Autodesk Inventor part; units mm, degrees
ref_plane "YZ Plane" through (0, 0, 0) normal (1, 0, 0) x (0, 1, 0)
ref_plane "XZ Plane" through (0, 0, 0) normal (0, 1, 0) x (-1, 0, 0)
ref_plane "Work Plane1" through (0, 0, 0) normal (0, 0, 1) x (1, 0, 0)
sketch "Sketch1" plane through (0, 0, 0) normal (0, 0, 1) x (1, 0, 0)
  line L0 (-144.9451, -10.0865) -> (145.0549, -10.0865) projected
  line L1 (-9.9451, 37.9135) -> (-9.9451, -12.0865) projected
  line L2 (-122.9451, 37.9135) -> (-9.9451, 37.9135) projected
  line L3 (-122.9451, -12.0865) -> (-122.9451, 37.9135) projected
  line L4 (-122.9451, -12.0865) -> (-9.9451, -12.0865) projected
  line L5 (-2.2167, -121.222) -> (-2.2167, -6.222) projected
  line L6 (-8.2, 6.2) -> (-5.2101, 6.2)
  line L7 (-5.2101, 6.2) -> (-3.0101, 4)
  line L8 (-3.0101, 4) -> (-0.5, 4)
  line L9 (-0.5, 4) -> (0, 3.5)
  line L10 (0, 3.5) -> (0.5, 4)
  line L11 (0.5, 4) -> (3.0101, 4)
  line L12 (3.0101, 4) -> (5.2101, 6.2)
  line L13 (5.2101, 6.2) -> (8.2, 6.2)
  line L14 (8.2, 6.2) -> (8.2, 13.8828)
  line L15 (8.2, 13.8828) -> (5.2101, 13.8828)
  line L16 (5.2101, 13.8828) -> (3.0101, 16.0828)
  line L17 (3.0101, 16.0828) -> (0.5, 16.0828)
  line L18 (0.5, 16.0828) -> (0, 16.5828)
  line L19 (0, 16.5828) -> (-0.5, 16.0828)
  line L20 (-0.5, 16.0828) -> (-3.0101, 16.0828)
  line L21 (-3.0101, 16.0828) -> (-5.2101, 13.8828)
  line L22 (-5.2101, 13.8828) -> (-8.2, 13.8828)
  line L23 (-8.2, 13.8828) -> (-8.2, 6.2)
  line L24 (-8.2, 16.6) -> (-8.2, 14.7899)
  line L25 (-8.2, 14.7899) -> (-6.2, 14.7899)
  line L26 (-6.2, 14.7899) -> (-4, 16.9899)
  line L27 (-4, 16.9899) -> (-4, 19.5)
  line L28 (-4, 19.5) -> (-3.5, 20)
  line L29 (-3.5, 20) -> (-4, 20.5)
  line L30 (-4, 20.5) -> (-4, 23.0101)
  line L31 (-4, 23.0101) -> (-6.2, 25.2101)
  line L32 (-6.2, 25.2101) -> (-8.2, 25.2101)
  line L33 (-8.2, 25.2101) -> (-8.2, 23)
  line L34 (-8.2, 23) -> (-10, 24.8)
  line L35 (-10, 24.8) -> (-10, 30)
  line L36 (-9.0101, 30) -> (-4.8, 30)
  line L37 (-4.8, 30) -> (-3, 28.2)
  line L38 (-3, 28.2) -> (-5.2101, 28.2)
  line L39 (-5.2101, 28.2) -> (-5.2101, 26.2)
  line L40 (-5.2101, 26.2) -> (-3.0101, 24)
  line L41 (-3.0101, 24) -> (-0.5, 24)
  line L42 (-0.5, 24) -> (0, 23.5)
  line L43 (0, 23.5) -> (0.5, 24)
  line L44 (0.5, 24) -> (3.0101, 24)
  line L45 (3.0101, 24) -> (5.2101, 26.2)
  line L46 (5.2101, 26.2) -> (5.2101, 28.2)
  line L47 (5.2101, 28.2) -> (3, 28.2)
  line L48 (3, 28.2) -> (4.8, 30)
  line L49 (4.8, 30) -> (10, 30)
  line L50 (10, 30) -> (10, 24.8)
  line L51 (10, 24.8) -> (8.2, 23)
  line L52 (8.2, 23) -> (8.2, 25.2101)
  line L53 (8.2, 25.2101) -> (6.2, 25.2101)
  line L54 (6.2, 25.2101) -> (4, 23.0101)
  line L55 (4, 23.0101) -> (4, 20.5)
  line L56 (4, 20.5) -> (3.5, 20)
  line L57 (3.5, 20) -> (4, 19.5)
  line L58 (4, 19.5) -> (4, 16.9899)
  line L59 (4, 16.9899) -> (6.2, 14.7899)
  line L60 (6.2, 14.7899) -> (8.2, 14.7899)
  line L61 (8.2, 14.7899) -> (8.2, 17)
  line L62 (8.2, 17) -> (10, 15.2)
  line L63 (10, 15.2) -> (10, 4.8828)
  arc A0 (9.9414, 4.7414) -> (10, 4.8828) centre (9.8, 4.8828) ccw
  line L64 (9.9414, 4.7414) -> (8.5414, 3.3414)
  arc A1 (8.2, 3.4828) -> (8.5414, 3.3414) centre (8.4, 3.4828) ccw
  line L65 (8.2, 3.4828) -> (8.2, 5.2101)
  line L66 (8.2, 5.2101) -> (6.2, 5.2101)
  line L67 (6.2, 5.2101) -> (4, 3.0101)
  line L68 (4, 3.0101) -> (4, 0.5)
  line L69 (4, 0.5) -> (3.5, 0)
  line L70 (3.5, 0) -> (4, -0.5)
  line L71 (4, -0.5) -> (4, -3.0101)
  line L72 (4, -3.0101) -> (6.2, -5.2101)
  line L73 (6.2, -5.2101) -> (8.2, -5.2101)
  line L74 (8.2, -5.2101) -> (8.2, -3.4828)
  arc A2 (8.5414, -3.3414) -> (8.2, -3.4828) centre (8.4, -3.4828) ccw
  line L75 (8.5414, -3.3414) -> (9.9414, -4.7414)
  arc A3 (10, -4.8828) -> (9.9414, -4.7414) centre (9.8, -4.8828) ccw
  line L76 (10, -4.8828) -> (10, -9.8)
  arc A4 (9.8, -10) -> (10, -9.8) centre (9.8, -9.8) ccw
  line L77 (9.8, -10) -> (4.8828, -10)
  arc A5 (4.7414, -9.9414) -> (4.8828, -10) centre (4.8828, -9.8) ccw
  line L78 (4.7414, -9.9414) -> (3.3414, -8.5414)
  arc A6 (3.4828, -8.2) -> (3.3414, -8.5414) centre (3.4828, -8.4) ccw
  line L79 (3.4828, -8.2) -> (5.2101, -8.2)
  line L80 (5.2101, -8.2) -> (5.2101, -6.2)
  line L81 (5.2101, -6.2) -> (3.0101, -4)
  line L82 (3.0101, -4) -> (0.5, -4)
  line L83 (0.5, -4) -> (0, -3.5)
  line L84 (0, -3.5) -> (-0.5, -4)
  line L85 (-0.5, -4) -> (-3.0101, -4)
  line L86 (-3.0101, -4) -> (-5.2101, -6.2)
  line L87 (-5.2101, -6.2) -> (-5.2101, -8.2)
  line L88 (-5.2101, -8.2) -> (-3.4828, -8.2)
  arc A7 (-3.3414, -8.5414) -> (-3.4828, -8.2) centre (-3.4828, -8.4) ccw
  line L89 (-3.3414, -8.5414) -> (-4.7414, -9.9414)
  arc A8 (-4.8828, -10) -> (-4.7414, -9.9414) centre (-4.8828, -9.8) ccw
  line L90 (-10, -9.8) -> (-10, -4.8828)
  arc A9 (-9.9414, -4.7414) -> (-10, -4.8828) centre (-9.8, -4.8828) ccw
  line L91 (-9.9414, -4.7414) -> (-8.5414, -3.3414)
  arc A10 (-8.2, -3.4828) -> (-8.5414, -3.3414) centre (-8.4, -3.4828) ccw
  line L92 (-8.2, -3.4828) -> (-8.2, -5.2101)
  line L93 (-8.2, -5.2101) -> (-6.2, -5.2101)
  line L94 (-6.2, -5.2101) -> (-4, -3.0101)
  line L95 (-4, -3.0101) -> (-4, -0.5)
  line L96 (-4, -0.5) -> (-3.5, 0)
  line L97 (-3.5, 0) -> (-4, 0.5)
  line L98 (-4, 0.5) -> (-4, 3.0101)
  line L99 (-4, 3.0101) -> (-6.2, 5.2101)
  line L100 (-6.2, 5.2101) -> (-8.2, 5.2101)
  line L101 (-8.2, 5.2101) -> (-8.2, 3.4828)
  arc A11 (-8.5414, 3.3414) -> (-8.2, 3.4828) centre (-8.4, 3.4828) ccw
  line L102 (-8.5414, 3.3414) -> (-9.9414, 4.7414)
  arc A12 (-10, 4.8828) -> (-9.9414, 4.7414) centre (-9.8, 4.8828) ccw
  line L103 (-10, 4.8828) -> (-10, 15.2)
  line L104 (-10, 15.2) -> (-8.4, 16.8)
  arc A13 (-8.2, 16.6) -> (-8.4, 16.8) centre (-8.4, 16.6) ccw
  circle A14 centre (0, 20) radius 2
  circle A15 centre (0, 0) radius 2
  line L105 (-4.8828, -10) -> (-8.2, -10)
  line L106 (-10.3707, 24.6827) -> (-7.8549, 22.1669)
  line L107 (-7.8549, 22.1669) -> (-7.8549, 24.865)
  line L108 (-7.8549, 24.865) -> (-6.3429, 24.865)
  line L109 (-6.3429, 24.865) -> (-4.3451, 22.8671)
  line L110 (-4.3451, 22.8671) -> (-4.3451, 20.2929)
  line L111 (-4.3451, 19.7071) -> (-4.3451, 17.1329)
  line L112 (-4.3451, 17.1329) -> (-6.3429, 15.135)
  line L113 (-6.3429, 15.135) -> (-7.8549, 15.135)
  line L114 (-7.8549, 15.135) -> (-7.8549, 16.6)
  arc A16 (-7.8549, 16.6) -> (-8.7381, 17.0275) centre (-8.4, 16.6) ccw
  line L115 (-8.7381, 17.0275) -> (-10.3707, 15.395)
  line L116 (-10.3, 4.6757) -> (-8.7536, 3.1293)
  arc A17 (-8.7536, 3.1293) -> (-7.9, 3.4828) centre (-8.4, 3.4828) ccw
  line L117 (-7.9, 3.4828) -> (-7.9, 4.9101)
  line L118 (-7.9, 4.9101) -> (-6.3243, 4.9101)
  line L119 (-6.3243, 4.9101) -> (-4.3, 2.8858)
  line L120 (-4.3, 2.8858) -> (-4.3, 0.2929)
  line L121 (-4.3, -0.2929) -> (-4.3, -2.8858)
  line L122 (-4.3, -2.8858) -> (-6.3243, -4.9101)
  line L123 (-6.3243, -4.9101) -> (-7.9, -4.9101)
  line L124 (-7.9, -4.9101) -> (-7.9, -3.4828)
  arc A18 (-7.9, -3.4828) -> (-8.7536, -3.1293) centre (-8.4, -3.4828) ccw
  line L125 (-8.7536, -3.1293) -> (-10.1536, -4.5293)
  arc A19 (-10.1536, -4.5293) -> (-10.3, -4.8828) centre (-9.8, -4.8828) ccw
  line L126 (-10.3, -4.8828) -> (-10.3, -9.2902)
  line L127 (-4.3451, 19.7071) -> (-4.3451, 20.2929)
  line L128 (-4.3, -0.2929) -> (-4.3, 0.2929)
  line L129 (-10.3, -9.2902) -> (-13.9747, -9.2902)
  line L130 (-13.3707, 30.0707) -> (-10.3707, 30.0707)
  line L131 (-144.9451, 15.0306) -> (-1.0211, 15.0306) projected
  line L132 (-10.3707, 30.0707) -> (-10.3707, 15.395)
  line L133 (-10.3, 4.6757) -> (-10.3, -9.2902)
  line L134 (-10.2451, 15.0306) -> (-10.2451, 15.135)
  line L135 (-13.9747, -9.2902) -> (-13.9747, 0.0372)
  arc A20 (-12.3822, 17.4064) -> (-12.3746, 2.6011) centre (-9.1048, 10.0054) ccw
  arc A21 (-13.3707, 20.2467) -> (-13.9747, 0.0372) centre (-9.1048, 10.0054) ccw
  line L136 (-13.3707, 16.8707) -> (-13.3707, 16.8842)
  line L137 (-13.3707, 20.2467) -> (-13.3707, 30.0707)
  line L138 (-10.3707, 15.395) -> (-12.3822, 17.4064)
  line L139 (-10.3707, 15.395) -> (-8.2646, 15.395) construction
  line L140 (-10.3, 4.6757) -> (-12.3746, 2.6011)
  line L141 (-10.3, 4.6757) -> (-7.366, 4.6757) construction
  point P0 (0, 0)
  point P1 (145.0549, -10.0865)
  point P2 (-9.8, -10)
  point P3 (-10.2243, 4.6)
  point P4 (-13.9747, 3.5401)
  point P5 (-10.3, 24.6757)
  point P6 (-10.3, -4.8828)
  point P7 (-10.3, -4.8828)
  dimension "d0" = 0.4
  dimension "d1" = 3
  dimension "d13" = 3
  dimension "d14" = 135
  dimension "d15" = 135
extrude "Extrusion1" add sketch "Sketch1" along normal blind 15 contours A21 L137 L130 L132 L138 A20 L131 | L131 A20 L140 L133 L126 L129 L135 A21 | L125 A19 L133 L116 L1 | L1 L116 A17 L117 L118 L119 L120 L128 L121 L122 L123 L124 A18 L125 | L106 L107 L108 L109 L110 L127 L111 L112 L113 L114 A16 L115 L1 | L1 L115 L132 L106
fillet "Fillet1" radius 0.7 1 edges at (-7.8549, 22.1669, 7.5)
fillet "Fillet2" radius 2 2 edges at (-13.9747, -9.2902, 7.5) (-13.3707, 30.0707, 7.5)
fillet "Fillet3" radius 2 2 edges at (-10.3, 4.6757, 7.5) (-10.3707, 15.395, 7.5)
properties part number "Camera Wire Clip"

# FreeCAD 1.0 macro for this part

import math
import FreeCAD as App
import Part
import Sketcher

V = App.Vector
Q = App.Units.Quantity


def edges_at(feature, points):
    """Names of the edges that pass closest to the given points."""
    edges = feature.Shape.Edges
    near = lambda p: min(range(len(edges)), key=lambda i: edges[i].distToShape(Part.Vertex(*p))[0])
    return sorted({f"Edge{near(p) + 1}" for p in points})

doc = App.newDocument("Part")
body = doc.addObject("PartDesign::Body", "Body")

sketch1 = body.newObject("Sketcher::SketchObject", "Sketch")
sketch1.AttachmentSupport = (doc.getObject("XY_Plane"), [""])
sketch1.MapMode = "FlatFace"
sketch1.addGeometry([
    Part.ArcOfCircle(Part.Circle(V(-9.1, 10.01, 0), V(0, 0, 1), 11.09), math.radians(113), math.radians(244)),
    Part.LineSegment(V(-13.97, 0.04, 0), V(-13.97, -9.29, 0)),
    Part.LineSegment(V(-13.97, -9.29, 0), V(-10.3, -9.29, 0)),
    Part.LineSegment(V(-10.3, -9.29, 0), V(-10.3, -4.88, 0)),
    Part.ArcOfCircle(Part.Circle(V(-9.8, -4.88, 0), V(0, 0, 1), 0.5), math.radians(135), math.radians(180)),
    Part.LineSegment(V(-10.15, -4.53, 0), V(-8.75, -3.13, 0)),
    Part.ArcOfCircle(Part.Circle(V(-8.4, -3.48, 0), V(0, 0, 1), 0.5), math.radians(0), math.radians(135)),
    Part.LineSegment(V(-7.9, -3.48, 0), V(-7.9, -4.91, 0)),
    Part.LineSegment(V(-7.9, -4.91, 0), V(-6.32, -4.91, 0)),
    Part.LineSegment(V(-6.32, -4.91, 0), V(-4.3, -2.89, 0)),
    Part.LineSegment(V(-4.3, -2.89, 0), V(-4.3, 2.89, 0)),
    Part.LineSegment(V(-4.3, 2.89, 0), V(-6.32, 4.91, 0)),
    Part.LineSegment(V(-6.32, 4.91, 0), V(-7.9, 4.91, 0)),
    Part.LineSegment(V(-7.9, 4.91, 0), V(-7.9, 3.48, 0)),
    Part.ArcOfCircle(Part.Circle(V(-8.4, 3.48, 0), V(0, 0, 1), 0.5), math.radians(-135), math.radians(0)),
    Part.LineSegment(V(-8.75, 3.13, 0), V(-10.3, 4.68, 0)),
    Part.LineSegment(V(-10.3, 4.68, 0), V(-12.37, 2.6, 0)),
    Part.ArcOfCircle(Part.Circle(V(-9.1, 10.01, 0), V(0, 0, 1), 8.09), math.radians(114), math.radians(246)),
    Part.LineSegment(V(-12.38, 17.41, 0), V(-10.37, 15.39, 0)),
    Part.LineSegment(V(-10.37, 15.39, 0), V(-8.74, 17.03, 0)),
    Part.ArcOfCircle(Part.Circle(V(-8.4, 16.6, 0), V(0, 0, 1), 0.55), math.radians(0), math.radians(128)),
    Part.LineSegment(V(-7.85, 16.6, 0), V(-7.85, 15.13, 0)),
    Part.LineSegment(V(-7.85, 15.13, 0), V(-6.34, 15.13, 0)),
    Part.LineSegment(V(-6.34, 15.13, 0), V(-4.35, 17.13, 0)),
    Part.LineSegment(V(-4.35, 17.13, 0), V(-4.35, 22.87, 0)),
    Part.LineSegment(V(-4.35, 22.87, 0), V(-6.34, 24.86, 0)),
    Part.LineSegment(V(-6.34, 24.86, 0), V(-7.85, 24.86, 0)),
    Part.LineSegment(V(-7.85, 24.86, 0), V(-7.85, 22.17, 0)),
    Part.LineSegment(V(-7.85, 22.17, 0), V(-10.37, 24.68, 0)),
    Part.LineSegment(V(-10.37, 24.68, 0), V(-10.37, 30.07, 0)),
    Part.LineSegment(V(-10.37, 30.07, 0), V(-13.37, 30.07, 0)),
    Part.LineSegment(V(-13.37, 30.07, 0), V(-13.37, 20.25, 0)),
], False)
sketch1.addConstraint([
    Sketcher.Constraint("Coincident", 0, 2, 1, 1),
    Sketcher.Constraint("Coincident", 1, 2, 2, 1),
    Sketcher.Constraint("Coincident", 2, 2, 3, 1),
    Sketcher.Constraint("Tangent", 3, 2, 4, 2),
    Sketcher.Constraint("Tangent", 4, 1, 5, 1),
    Sketcher.Constraint("Tangent", 5, 2, 6, 2),
    Sketcher.Constraint("Tangent", 6, 1, 7, 1),
    Sketcher.Constraint("Coincident", 7, 2, 8, 1),
    Sketcher.Constraint("Coincident", 8, 2, 9, 1),
    Sketcher.Constraint("Coincident", 9, 2, 10, 1),
    Sketcher.Constraint("Coincident", 10, 2, 11, 1),
    Sketcher.Constraint("Coincident", 11, 2, 12, 1),
    Sketcher.Constraint("Coincident", 12, 2, 13, 1),
    Sketcher.Constraint("Tangent", 13, 2, 14, 2),
    Sketcher.Constraint("Tangent", 14, 1, 15, 1),
    Sketcher.Constraint("Coincident", 15, 2, 16, 1),
    Sketcher.Constraint("Coincident", 16, 2, 17, 2),
    Sketcher.Constraint("Coincident", 17, 1, 18, 1),
    Sketcher.Constraint("Coincident", 18, 2, 19, 1),
    Sketcher.Constraint("Coincident", 19, 2, 20, 2),
    Sketcher.Constraint("Tangent", 20, 1, 21, 1),
    Sketcher.Constraint("Coincident", 21, 2, 22, 1),
    Sketcher.Constraint("Coincident", 22, 2, 23, 1),
    Sketcher.Constraint("Coincident", 23, 2, 24, 1),
    Sketcher.Constraint("Coincident", 24, 2, 25, 1),
    Sketcher.Constraint("Coincident", 25, 2, 26, 1),
    Sketcher.Constraint("Coincident", 26, 2, 27, 1),
    Sketcher.Constraint("Coincident", 27, 2, 28, 1),
    Sketcher.Constraint("Coincident", 28, 2, 29, 1),
    Sketcher.Constraint("Coincident", 29, 2, 30, 1),
    Sketcher.Constraint("Coincident", 30, 2, 31, 1),
    Sketcher.Constraint("Coincident", 31, 2, 0, 1),
    Sketcher.Constraint("Vertical", 1),
    Sketcher.Constraint("Horizontal", 2),
    Sketcher.Constraint("Vertical", 3),
    Sketcher.Constraint("Vertical", 7),
    Sketcher.Constraint("Horizontal", 8),
    Sketcher.Constraint("Vertical", 10),
    Sketcher.Constraint("Horizontal", 12),
    Sketcher.Constraint("Vertical", 13),
    Sketcher.Constraint("Vertical", 21),
    Sketcher.Constraint("Horizontal", 22),
    Sketcher.Constraint("Vertical", 24),
    Sketcher.Constraint("Horizontal", 26),
    Sketcher.Constraint("Vertical", 27),
    Sketcher.Constraint("Vertical", 29),
    Sketcher.Constraint("Horizontal", 30),
    Sketcher.Constraint("Vertical", 31),
    Sketcher.Constraint("Coincident", 17, 3, 0, 3),
    Sketcher.Constraint("Equal", 4, 6),
    Sketcher.Constraint("Equal", 6, 14),
    Sketcher.Constraint("Symmetric", 6, 3, 14, 3, -1),
    Sketcher.Constraint("Symmetric", 8, 2, 11, 2, -1),
    Sketcher.Constraint("Parallel", 5, 9),
    Sketcher.Constraint("Perpendicular", 9, 11),
    Sketcher.Constraint("Parallel", 11, 15),
    Sketcher.Constraint("Perpendicular", 15, 16),
    Sketcher.Constraint("Perpendicular", 16, 18),
    Sketcher.Constraint("Perpendicular", 18, 19),
    Sketcher.Constraint("Parallel", 19, 23),
    Sketcher.Constraint("Perpendicular", 23, 25),
    Sketcher.Constraint("Parallel", 25, 28),
    Sketcher.Constraint("Vertical", 14, 3, 20, 3),
    Sketcher.Constraint("Vertical", 5, 2, 14, 1),
    Sketcher.Constraint("Vertical", 3, 2, 15, 2),
    Sketcher.Constraint("Vertical", 22, 2, 25, 2),
    Sketcher.Constraint("Vertical", 21, 2, 26, 2),
    Sketcher.Constraint("Vertical", 18, 2, 28, 2),
    Sketcher.Constraint("DistanceX", 30, 2, 30, 1, Q("3 mm")),
    Sketcher.Constraint("Radius", 4, Q("0.5 mm")),
    Sketcher.Constraint("Radius", 20, Q("0.545 mm")),
    Sketcher.Constraint("DistanceX", 4, 3, -1, 1, Q("9.8 mm")),
    Sketcher.Constraint("DistanceX", 6, 3, -1, 1, Q("8.4 mm")),
    Sketcher.Constraint("DistanceY", -1, 1, 20, 3, Q("16.6 mm")),
    Sketcher.Constraint("DistanceX", 9, 2, -1, 1, Q("4.3 mm")),
    Sketcher.Constraint("Radius", 0, Q("11.0942 mm")),
    Sketcher.Constraint("Radius", 17, Q("8.0942 mm")),
    Sketcher.Constraint("DistanceX", 22, 1, 22, 2, Q("1.512 mm")),
    Sketcher.Constraint("DistanceY", 21, 2, 21, 1, Q("1.465 mm")),
    Sketcher.Constraint("DistanceY", 27, 2, 27, 1, Q("2.698 mm")),
    Sketcher.Constraint("DistanceY", 29, 1, 29, 2, Q("5.388 mm")),
    Sketcher.Constraint("DistanceY", 31, 2, 31, 1, Q("9.824 mm")),
    Sketcher.Constraint("DistanceY", 7, 2, -1, 1, Q("4.91 mm")),
    Sketcher.Constraint("DistanceY", 4, 3, 0, 2, Q("4.92 mm")),
    Sketcher.Constraint("DistanceX", 0, 2, 0, 3, Q("4.87 mm")),
    Sketcher.Constraint("DistanceX", 0, 3, 20, 1, Q("1.25 mm")),
    Sketcher.Constraint("DistanceY", 21, 2, 18, 2, Q("0.26 mm")),
    Sketcher.Constraint("Distance", 16, Q("2.934 mm")),
    Sketcher.Constraint("DistanceX", 8, 1, 8, 2, Q("1.5757 mm")),
    Sketcher.Constraint("DistanceY", 1, 2, 1, 1, Q("9.3274 mm")),
    Sketcher.Constraint("DistanceY", 24, 1, 24, 2, Q("5.7342 mm")),
    Sketcher.Constraint("DistanceX", 19, 2, -1, 1, Q("8.738 mm")),
])
pad1 = body.newObject("PartDesign::Pad", "Pad")
pad1.Profile = sketch1
pad1.Length = 15
doc.recompute()

fillet = body.newObject("PartDesign::Fillet", "Fillet")
fillet.Base = (pad1, edges_at(pad1, [(-7.855, 22.167, 7.5)]))
fillet.Radius = 0.7
doc.recompute()

fillet2 = body.newObject("PartDesign::Fillet", "Fillet001")
fillet2.Base = (fillet, edges_at(fillet, [(-13.975, -9.29, 7.5), (-13.371, 30.071, 7.5)]))
fillet2.Radius = 2
doc.recompute()

fillet3 = body.newObject("PartDesign::Fillet", "Fillet002")
fillet3.Base = (fillet2, edges_at(fillet2, [(-10.3, 4.676, 7.5), (-10.371, 15.395, 7.5)]))
fillet3.Radius = 2

doc.recompute()
